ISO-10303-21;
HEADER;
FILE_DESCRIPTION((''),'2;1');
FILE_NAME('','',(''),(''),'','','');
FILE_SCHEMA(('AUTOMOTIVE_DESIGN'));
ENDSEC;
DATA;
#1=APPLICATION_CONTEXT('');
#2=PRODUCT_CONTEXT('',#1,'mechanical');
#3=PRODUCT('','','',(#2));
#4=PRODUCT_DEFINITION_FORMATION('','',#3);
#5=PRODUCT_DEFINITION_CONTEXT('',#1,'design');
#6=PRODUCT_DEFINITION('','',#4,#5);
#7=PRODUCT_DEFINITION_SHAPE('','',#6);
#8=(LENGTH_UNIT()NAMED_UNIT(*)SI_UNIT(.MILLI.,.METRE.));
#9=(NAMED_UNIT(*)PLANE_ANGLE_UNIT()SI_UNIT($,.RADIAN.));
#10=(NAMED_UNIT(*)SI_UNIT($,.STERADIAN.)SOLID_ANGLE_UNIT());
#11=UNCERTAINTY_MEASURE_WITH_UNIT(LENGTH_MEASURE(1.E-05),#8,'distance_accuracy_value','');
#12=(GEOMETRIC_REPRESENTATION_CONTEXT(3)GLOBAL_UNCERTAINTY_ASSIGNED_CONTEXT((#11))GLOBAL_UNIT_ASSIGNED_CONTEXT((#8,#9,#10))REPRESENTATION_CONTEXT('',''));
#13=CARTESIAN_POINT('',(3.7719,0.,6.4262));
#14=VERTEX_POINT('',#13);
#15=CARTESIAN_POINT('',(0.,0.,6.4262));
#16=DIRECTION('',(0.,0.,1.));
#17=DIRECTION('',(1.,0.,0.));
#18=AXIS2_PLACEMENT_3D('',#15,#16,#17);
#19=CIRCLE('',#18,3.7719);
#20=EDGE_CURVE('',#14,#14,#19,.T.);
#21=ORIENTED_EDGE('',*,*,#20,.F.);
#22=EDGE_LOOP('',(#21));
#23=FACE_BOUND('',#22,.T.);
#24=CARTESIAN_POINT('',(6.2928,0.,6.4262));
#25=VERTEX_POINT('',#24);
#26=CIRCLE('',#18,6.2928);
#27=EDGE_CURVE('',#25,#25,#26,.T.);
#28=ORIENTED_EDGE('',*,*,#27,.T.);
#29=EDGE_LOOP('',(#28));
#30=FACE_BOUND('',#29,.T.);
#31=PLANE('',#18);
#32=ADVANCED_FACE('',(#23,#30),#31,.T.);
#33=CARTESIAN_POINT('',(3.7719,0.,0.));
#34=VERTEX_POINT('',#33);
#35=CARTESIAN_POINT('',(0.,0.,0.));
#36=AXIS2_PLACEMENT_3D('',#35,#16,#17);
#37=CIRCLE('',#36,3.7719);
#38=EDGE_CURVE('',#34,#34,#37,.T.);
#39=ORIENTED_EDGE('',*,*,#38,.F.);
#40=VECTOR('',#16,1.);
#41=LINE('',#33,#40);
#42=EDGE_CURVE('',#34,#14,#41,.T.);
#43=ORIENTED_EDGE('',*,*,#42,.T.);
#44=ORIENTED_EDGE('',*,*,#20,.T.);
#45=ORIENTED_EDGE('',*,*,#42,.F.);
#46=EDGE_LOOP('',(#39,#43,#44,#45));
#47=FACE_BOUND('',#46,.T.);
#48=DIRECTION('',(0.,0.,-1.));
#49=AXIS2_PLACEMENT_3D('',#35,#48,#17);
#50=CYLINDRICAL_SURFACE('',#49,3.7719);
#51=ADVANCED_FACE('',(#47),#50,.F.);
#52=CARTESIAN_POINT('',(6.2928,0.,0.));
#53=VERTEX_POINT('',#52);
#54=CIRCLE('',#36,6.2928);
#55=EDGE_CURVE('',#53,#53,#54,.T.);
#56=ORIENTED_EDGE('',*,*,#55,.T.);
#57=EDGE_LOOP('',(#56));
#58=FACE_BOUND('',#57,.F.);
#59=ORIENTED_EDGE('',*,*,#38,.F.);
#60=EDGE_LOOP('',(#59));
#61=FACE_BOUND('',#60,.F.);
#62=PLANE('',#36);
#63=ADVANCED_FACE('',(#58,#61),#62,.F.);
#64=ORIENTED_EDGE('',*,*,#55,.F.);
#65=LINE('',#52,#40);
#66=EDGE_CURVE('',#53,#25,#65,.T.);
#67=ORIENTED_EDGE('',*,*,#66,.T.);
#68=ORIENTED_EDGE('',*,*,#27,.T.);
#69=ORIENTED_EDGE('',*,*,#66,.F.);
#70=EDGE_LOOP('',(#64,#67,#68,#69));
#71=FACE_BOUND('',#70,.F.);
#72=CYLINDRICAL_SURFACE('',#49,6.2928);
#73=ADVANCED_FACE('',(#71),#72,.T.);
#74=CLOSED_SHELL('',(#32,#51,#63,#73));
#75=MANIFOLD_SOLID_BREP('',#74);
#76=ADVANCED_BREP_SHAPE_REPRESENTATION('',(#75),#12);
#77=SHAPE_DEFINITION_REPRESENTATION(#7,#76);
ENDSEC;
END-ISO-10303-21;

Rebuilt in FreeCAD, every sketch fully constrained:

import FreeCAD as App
import Part
import Sketcher
from FreeCAD import Vector
Q = App.Units.Quantity

doc = App.newDocument("Part")
body = doc.addObject("PartDesign::Body", "Body")

sketch1 = body.newObject("Sketcher::SketchObject", "Sketch")
sketch1.AttachmentSupport = (doc.getObject("XY_Plane"), [""])
sketch1.MapMode = "FlatFace"
sketch1.addGeometry([
    Part.Circle(Vector(0, 0, 0), Vector(0, 0, 1), 6.3),
    Part.Circle(Vector(0, 0, 0), Vector(0, 0, 1), 3.8),
], False)
sketch1.addConstraint([
    Sketcher.Constraint("Coincident", 0, 3, -1, 1),
    Sketcher.Constraint("Coincident", 1, 3, -1, 1),
    Sketcher.Constraint("Diameter", 1, Q("0.297 in")),
    Sketcher.Constraint("Diameter", 0, Q("0.4955 in")),
])
pad1 = body.newObject("PartDesign::Pad", "Pad")
pad1.Profile = sketch1
pad1.Length = Q("0.253 in")

doc.recompute()
